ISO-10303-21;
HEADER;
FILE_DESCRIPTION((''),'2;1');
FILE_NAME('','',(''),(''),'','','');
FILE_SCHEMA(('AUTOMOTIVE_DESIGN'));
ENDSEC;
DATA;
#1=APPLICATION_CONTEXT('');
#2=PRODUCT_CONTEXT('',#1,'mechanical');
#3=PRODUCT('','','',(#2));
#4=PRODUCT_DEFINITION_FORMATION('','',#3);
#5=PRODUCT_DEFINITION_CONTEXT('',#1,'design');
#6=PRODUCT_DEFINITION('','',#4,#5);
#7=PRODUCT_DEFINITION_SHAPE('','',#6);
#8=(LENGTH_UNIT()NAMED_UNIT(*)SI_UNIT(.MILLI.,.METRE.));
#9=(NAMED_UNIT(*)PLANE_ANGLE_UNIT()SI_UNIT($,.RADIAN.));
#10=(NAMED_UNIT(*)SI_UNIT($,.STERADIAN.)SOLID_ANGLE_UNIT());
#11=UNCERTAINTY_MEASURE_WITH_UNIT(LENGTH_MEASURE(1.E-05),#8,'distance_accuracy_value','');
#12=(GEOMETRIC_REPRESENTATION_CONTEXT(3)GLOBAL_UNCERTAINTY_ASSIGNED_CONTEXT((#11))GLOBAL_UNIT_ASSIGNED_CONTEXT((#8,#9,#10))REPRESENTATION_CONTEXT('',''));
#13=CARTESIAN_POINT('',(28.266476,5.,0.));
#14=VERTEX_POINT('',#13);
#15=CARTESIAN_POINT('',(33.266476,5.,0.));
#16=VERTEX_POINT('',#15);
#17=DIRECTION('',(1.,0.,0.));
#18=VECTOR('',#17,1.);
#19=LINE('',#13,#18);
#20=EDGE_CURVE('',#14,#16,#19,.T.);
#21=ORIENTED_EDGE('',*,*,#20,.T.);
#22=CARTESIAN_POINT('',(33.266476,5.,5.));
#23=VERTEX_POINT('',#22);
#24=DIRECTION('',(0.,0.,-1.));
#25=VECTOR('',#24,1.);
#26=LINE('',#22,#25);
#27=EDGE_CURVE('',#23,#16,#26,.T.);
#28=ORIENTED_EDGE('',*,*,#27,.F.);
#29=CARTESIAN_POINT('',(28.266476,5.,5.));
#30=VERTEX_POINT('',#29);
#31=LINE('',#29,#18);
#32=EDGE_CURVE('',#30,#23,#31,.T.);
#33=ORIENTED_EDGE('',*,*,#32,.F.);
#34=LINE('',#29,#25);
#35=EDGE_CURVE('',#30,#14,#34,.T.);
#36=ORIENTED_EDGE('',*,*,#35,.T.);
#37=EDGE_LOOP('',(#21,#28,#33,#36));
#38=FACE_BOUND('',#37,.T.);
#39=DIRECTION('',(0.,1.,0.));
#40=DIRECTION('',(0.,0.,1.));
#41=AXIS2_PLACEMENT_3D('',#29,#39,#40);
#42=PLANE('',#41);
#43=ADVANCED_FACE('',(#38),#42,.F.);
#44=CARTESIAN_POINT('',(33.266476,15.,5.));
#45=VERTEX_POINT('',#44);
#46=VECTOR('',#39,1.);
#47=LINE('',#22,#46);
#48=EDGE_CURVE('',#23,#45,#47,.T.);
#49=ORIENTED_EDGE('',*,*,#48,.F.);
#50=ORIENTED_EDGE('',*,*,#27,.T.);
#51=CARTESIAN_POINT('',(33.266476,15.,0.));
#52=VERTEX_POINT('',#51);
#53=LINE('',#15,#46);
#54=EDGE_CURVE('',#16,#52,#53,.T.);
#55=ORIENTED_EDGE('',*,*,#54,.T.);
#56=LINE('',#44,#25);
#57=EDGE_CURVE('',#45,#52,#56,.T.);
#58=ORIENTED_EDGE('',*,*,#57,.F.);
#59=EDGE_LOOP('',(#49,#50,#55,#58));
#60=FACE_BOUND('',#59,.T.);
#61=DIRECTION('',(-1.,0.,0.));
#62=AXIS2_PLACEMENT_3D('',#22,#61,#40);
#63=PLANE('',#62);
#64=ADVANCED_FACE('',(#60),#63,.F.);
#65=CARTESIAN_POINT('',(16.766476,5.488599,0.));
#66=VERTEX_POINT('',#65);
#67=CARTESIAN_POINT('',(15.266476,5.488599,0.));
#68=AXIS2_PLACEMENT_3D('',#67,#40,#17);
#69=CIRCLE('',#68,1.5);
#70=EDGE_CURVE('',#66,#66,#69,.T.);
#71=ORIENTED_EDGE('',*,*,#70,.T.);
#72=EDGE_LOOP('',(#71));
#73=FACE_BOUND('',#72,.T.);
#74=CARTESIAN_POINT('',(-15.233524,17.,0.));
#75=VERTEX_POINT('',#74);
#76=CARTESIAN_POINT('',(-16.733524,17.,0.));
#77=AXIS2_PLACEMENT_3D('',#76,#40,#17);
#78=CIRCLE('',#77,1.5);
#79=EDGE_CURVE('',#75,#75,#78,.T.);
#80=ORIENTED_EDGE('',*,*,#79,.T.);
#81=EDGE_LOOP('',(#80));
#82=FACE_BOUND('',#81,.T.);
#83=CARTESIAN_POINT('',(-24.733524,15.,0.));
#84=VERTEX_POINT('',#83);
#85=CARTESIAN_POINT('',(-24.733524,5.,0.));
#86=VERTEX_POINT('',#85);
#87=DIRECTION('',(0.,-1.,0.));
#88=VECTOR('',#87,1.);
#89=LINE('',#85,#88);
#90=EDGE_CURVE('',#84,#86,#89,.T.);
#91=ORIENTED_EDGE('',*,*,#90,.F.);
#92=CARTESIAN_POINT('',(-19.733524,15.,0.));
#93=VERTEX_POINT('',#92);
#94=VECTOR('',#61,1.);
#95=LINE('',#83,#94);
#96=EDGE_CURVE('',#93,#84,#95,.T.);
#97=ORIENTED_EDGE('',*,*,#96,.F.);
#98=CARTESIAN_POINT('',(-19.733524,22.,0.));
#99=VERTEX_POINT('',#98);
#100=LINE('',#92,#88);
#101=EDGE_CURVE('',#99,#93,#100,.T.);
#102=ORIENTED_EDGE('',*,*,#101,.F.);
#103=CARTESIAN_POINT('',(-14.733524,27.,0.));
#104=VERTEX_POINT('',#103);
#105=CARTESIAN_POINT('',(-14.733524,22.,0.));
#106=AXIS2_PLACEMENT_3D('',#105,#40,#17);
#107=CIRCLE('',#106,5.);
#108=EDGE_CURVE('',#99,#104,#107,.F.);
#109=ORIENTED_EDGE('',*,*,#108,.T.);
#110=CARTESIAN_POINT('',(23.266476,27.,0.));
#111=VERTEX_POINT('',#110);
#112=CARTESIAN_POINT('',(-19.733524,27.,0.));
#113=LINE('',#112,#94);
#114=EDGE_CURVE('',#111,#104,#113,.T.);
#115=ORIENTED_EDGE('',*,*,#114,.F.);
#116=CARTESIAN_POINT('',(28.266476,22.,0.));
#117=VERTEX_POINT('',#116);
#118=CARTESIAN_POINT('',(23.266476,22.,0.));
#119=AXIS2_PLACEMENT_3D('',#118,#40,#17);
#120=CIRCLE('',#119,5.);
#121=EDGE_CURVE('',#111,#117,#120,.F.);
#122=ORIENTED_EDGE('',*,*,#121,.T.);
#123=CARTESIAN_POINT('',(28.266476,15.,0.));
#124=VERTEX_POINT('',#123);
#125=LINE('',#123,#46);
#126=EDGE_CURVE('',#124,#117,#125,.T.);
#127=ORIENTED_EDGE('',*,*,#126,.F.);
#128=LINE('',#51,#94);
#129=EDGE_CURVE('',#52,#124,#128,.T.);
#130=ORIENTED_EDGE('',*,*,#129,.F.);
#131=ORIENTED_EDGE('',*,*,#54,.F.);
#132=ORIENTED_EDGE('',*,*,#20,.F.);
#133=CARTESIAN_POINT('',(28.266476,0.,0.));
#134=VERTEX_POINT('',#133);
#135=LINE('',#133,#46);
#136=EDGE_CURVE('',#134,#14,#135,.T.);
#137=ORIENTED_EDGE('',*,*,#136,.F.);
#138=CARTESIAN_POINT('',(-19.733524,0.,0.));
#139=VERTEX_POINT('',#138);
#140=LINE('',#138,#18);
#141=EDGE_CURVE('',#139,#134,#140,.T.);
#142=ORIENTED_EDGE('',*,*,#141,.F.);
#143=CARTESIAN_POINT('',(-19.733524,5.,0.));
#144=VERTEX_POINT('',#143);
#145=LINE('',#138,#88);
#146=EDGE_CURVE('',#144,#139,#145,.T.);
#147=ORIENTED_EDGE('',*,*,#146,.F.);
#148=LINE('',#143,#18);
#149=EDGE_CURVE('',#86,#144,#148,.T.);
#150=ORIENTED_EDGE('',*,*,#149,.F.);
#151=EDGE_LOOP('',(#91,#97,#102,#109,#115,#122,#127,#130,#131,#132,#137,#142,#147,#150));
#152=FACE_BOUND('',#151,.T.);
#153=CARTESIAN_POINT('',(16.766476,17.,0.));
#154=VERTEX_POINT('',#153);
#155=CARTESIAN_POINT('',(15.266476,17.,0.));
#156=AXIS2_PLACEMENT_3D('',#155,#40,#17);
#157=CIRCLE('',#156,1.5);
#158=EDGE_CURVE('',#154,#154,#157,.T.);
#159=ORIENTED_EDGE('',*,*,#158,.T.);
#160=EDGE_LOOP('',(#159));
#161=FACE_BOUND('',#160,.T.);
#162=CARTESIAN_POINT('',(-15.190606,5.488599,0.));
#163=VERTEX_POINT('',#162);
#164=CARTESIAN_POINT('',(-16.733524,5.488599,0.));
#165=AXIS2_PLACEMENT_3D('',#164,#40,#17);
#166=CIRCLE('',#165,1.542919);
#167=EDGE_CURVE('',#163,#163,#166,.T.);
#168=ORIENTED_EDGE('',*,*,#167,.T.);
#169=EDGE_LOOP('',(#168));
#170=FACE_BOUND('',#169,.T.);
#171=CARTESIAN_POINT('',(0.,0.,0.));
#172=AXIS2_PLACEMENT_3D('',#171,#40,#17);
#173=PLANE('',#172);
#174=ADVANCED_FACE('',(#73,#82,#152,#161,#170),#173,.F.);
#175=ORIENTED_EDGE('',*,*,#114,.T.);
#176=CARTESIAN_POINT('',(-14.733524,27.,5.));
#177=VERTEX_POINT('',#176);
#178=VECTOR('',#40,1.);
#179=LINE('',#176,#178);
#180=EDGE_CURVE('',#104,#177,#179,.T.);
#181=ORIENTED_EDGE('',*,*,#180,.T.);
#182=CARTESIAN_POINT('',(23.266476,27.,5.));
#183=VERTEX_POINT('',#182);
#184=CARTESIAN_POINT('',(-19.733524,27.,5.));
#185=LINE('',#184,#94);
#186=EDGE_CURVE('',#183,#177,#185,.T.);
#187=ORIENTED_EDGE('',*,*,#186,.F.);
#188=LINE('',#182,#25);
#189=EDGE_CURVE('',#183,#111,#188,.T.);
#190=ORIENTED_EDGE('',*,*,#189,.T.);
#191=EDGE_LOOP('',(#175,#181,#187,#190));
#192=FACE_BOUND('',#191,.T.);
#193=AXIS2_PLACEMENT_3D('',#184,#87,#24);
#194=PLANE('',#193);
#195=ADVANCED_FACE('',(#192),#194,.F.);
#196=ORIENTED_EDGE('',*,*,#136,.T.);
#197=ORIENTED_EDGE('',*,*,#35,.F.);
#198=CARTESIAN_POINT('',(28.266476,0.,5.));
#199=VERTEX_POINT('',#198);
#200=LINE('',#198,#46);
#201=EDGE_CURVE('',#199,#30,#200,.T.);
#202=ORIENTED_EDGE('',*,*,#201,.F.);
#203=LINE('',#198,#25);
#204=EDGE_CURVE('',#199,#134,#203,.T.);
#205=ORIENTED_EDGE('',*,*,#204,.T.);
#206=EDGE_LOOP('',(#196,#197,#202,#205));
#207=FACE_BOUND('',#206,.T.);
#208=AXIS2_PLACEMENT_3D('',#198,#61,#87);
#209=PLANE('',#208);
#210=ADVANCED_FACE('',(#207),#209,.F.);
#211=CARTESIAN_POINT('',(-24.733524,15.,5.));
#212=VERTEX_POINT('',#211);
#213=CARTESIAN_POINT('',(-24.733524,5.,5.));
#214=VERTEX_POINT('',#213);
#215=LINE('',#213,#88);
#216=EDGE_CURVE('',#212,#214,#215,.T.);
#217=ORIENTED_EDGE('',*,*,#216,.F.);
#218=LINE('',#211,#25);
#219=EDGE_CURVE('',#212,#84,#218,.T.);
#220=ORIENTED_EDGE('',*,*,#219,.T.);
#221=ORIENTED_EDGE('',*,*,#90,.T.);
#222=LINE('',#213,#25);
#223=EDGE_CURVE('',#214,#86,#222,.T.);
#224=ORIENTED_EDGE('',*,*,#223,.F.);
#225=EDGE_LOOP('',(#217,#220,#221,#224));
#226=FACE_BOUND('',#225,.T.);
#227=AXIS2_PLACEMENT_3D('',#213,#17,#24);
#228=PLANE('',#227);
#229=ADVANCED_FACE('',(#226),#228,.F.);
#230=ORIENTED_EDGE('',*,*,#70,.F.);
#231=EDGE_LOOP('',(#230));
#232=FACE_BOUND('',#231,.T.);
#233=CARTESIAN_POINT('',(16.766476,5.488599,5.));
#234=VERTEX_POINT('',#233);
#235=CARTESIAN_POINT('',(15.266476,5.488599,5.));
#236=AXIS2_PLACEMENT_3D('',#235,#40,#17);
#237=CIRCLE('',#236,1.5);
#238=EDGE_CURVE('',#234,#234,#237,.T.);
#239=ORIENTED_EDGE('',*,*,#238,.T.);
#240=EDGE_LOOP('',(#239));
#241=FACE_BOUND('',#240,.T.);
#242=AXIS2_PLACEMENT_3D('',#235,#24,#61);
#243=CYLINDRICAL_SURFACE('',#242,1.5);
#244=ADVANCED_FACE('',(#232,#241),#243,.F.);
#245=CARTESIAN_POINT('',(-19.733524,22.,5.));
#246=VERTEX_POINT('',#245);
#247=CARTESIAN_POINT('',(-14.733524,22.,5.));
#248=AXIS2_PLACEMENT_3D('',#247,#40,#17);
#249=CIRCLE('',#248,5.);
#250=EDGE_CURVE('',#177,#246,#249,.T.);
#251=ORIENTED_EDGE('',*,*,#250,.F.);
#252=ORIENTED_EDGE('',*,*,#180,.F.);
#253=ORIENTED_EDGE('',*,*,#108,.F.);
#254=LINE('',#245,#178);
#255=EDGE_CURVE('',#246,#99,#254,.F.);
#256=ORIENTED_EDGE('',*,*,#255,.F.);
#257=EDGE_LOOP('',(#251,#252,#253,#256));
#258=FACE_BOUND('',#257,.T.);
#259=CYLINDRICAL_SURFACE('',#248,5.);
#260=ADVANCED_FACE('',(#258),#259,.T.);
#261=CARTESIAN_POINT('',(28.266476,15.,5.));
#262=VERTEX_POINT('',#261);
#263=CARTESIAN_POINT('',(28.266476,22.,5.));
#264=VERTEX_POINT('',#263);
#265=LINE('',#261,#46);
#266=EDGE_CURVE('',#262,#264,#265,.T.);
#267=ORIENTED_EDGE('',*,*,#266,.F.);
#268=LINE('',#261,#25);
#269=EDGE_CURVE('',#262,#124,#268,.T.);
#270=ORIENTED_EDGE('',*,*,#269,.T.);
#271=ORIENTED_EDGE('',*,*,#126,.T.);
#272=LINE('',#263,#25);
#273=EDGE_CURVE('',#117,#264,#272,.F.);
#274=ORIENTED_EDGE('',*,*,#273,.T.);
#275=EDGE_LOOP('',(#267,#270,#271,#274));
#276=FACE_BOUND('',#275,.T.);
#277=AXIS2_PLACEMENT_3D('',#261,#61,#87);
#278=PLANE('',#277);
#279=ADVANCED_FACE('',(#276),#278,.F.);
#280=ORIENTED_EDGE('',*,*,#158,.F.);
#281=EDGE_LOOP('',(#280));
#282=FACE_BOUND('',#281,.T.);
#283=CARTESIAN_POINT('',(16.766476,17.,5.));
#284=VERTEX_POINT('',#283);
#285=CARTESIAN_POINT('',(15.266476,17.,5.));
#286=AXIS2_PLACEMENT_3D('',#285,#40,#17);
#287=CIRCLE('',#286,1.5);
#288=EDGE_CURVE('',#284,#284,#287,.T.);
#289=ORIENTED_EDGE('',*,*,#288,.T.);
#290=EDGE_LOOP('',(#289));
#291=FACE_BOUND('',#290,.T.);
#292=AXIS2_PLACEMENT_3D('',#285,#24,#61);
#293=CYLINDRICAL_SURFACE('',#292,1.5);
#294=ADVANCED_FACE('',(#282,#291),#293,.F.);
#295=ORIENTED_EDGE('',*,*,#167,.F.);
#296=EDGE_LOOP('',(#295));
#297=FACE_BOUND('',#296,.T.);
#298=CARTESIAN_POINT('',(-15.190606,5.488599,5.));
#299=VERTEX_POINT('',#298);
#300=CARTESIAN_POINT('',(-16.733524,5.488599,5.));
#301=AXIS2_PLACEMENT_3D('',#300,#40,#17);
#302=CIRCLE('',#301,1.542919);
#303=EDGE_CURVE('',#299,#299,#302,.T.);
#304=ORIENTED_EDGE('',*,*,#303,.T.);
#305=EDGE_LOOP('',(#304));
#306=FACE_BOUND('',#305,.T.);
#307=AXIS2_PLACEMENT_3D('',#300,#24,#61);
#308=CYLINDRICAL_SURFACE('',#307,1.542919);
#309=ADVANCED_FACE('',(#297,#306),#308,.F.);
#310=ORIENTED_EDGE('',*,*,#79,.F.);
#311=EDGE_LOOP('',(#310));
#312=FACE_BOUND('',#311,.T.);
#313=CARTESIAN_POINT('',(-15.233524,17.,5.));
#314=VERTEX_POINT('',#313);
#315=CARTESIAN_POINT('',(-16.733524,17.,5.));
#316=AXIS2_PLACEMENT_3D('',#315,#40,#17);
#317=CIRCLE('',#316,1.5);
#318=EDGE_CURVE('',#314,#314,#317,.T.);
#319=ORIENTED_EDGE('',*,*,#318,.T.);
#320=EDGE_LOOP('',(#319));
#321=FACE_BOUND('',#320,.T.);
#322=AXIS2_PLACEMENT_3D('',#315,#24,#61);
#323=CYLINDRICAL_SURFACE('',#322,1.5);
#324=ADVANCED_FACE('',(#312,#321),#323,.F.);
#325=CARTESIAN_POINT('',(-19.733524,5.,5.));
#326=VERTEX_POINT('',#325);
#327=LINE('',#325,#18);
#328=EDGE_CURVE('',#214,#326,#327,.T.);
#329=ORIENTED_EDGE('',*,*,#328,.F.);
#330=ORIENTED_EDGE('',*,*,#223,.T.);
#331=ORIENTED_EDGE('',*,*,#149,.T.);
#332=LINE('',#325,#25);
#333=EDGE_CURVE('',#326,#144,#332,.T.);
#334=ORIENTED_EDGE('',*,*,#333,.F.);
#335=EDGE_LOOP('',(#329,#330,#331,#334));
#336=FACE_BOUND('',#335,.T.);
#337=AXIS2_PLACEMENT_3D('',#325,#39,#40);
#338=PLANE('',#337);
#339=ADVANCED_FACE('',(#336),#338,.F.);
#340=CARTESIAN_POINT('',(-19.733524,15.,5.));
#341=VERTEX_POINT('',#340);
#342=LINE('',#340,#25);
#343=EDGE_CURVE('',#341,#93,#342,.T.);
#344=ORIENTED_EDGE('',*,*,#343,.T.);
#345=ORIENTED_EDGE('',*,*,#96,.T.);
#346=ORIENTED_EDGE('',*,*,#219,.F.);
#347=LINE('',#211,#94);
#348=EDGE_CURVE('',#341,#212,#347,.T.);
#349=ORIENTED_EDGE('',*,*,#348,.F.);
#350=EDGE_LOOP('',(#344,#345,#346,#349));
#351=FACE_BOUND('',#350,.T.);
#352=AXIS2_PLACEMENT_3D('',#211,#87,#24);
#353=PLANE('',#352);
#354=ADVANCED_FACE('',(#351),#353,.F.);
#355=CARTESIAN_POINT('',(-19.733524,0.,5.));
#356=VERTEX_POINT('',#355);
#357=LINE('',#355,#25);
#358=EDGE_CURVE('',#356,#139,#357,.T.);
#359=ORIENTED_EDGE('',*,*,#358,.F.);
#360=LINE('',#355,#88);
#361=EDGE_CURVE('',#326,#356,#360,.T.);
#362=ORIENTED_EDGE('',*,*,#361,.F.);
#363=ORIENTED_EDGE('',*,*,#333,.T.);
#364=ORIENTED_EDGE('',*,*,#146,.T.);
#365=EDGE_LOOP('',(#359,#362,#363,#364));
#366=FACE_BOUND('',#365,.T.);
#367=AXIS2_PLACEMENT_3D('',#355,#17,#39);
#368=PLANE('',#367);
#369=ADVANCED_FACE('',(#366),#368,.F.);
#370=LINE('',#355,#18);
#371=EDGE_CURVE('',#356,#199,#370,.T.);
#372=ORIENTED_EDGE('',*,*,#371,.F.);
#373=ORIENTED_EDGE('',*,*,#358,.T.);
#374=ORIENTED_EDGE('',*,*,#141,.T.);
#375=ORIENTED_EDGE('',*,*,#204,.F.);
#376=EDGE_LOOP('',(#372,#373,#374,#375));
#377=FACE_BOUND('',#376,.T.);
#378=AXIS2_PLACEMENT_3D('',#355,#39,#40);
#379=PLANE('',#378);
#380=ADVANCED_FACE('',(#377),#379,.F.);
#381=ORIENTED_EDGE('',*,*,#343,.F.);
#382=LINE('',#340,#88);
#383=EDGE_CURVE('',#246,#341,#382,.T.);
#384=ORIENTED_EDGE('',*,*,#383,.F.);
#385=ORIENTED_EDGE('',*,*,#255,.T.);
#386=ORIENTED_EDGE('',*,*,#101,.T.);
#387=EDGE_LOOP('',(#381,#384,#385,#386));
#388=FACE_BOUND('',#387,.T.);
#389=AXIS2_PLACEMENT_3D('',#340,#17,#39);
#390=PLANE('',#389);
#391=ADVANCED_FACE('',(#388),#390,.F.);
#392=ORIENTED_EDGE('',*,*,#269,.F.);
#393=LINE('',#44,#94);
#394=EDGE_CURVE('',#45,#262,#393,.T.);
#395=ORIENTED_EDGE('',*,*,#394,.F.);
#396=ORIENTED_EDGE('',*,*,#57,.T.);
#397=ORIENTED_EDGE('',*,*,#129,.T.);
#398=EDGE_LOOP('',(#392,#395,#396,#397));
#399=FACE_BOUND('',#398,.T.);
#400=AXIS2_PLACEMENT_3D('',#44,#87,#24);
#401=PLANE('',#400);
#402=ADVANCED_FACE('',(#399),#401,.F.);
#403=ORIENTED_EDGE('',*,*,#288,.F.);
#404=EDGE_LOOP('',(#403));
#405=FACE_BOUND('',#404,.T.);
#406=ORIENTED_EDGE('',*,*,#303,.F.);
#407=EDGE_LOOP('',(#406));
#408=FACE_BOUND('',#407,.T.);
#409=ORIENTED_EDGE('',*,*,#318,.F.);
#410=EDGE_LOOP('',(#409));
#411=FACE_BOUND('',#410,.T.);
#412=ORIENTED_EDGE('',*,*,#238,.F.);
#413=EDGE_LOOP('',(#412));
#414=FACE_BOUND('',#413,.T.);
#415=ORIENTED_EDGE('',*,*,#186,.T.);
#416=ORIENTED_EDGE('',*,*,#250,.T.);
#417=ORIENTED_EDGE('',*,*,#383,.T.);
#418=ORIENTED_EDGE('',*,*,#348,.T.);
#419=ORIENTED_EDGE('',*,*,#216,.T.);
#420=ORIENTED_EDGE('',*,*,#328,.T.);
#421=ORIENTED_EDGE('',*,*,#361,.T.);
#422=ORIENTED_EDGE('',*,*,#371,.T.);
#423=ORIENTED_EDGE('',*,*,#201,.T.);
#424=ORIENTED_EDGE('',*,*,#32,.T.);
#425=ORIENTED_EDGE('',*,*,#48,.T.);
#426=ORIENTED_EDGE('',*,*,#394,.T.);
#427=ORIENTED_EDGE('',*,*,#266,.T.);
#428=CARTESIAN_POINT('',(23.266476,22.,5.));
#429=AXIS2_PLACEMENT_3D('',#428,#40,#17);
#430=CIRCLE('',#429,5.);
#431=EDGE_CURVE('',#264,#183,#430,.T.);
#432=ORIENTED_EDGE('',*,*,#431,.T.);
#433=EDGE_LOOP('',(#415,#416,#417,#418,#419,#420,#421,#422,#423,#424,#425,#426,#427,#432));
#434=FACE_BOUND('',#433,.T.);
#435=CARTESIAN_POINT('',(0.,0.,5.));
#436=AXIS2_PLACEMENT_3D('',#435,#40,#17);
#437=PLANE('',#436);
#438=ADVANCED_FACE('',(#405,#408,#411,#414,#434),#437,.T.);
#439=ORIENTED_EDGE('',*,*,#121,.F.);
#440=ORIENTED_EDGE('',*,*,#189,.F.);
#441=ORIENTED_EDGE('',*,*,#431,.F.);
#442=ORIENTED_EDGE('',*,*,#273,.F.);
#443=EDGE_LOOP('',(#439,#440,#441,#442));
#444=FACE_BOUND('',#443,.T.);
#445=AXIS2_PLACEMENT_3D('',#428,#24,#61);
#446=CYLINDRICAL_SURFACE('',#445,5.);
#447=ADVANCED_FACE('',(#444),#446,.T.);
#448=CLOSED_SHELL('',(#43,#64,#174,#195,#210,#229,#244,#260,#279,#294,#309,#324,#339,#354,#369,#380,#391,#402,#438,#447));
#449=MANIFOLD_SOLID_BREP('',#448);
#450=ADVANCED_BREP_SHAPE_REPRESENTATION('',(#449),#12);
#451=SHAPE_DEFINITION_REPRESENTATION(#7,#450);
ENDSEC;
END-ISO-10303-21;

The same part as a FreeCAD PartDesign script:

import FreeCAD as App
import Part
import Sketcher

V = App.Vector
Q = App.Units.Quantity


def edges_at(feature, points):
    """Names of the edges that pass closest to the given points."""
    edges = feature.Shape.Edges
    near = lambda p: min(range(len(edges)), key=lambda i: edges[i].distToShape(Part.Vertex(*p))[0])
    return sorted({f"Edge{near(p) + 1}" for p in points})

doc = App.newDocument("Part")
body = doc.addObject("PartDesign::Body", "Body")

sketch1 = body.newObject("Sketcher::SketchObject", "Sketch")
sketch1.AttachmentSupport = (doc.getObject("XY_Plane"), [""])
sketch1.MapMode = "FlatFace"
sketch1.addGeometry(Part.LineSegment(V(-19.733524, 0, 0), V(28.266476, 0, 0)), False)
sketch1.addGeometry(Part.LineSegment(V(28.266476, 0, 0), V(28.266476, 5, 0)), False)
sketch1.addGeometry(Part.LineSegment(V(28.266476, 5, 0), V(33.266476, 5, 0)), False)
sketch1.addGeometry(Part.LineSegment(V(33.266476, 5, 0), V(33.266476, 15, 0)), False)
sketch1.addGeometry(Part.LineSegment(V(33.266476, 15, 0), V(28.266476, 15, 0)), False)
sketch1.addGeometry(Part.LineSegment(V(28.266476, 15, 0), V(28.266476, 27, 0)), False)
sketch1.addGeometry(Part.LineSegment(V(28.266476, 27, 0), V(-19.733524, 27, 0)), False)
sketch1.addGeometry(Part.LineSegment(V(-19.733524, 27, 0), V(-19.733524, 15, 0)), False)
sketch1.addGeometry(Part.LineSegment(V(-19.733524, 15, 0), V(-24.733524, 15, 0)), False)
sketch1.addGeometry(Part.LineSegment(V(-24.733524, 15, 0), V(-24.733524, 5, 0)), False)
sketch1.addGeometry(Part.LineSegment(V(-24.733524, 5, 0), V(-19.733524, 5, 0)), False)
sketch1.addGeometry(Part.LineSegment(V(-19.733524, 5, 0), V(-19.733524, 0, 0)), False)
sketch1.addGeometry(Part.Circle(V(-16.733524, 5.488599, 0), V(0, 0, 1), 1.542919), False)
sketch1.addGeometry(Part.Circle(V(15.266476, 5.488599, 0), V(0, 0, 1), 1.5), False)
sketch1.addGeometry(Part.Circle(V(-16.733524, 17, 0), V(0, 0, 1), 1.5), False)
sketch1.addGeometry(Part.Circle(V(15.266476, 17, 0), V(0, 0, 1), 1.5), False)
sketch1.addConstraint(Sketcher.Constraint("Coincident", 0, 2, 1, 1))
sketch1.addConstraint(Sketcher.Constraint("Coincident", 1, 2, 2, 1))
sketch1.addConstraint(Sketcher.Constraint("Coincident", 2, 2, 3, 1))
sketch1.addConstraint(Sketcher.Constraint("Coincident", 3, 2, 4, 1))
sketch1.addConstraint(Sketcher.Constraint("Coincident", 4, 2, 5, 1))
sketch1.addConstraint(Sketcher.Constraint("Coincident", 5, 2, 6, 1))
sketch1.addConstraint(Sketcher.Constraint("Coincident", 6, 2, 7, 1))
sketch1.addConstraint(Sketcher.Constraint("Coincident", 7, 2, 8, 1))
sketch1.addConstraint(Sketcher.Constraint("Coincident", 8, 2, 9, 1))
sketch1.addConstraint(Sketcher.Constraint("Coincident", 9, 2, 10, 1))
sketch1.addConstraint(Sketcher.Constraint("Coincident", 10, 2, 11, 1))
sketch1.addConstraint(Sketcher.Constraint("Coincident", 11, 2, 0, 1))
sketch1.addConstraint(Sketcher.Constraint("Horizontal", 0))
sketch1.addConstraint(Sketcher.Constraint("Vertical", 1))
sketch1.addConstraint(Sketcher.Constraint("Horizontal", 2))
sketch1.addConstraint(Sketcher.Constraint("Vertical", 3))
sketch1.addConstraint(Sketcher.Constraint("Horizontal", 4))
sketch1.addConstraint(Sketcher.Constraint("Vertical", 5))
sketch1.addConstraint(Sketcher.Constraint("Horizontal", 6))
sketch1.addConstraint(Sketcher.Constraint("Vertical", 7))
sketch1.addConstraint(Sketcher.Constraint("Horizontal", 8))
sketch1.addConstraint(Sketcher.Constraint("Vertical", 9))
sketch1.addConstraint(Sketcher.Constraint("Horizontal", 10))
sketch1.addConstraint(Sketcher.Constraint("Vertical", 11))
sketch1.addConstraint(Sketcher.Constraint("Equal", 13, 14))
sketch1.addConstraint(Sketcher.Constraint("Equal", 14, 15))
sketch1.addConstraint(Sketcher.Constraint("PointOnObject", 0, 2, -1))
sketch1.addConstraint(Sketcher.Constraint("Horizontal", 12, 3, 13, 3))
sketch1.addConstraint(Sketcher.Constraint("Horizontal", 14, 3, 15, 3))
sketch1.addConstraint(Sketcher.Constraint("Horizontal", 4, 2, 7, 2))
sketch1.addConstraint(Sketcher.Constraint("Horizontal", 2, 2, 9, 2))
sketch1.addConstraint(Sketcher.Constraint("Vertical", 12, 3, 14, 3))
sketch1.addConstraint(Sketcher.Constraint("Vertical", 13, 3, 15, 3))
sketch1.addConstraint(Sketcher.Constraint("Vertical", 1, 2, 4, 2))
sketch1.addConstraint(Sketcher.Constraint("Vertical", 7, 2, 10, 2))
sketch1.addConstraint(Sketcher.Constraint("Equal", 4, 8))
sketch1.addConstraint(Sketcher.Constraint("Equal", 10, 1))
sketch1.addConstraint(Sketcher.Constraint("Diameter", 13, Q("3 mm")))
sketch1.addConstraint(Sketcher.Constraint("DistanceX", 0, 1, 0, 2, Q("48 mm")))
sketch1.addConstraint(Sketcher.Constraint("DistanceX", 2, 1, 2, 2, Q("5 mm")))
sketch1.addConstraint(Sketcher.Constraint("DistanceY", 3, 1, 3, 2, Q("10 mm")))
sketch1.addConstraint(Sketcher.Constraint("DistanceY", 5, 1, 5, 2, Q("12 mm")))
sketch1.addConstraint(Sketcher.Constraint("DistanceY", -1, 1, 14, 3, Q("17 mm")))
sketch1.addConstraint(Sketcher.Constraint("DistanceX", 12, 3, 13, 3, Q("32 mm")))
sketch1.addConstraint(Sketcher.Constraint("DistanceX", 13, 3, 0, 2, Q("13 mm")))
sketch1.addConstraint(Sketcher.Constraint("Diameter", 12, Q("3.085837 mm")))
sketch1.addConstraint(Sketcher.Constraint("DistanceY", -1, 1, 12, 3, Q("5.488599 mm")))
sketch1.addConstraint(Sketcher.Constraint("DistanceX", 12, 3, -1, 1, Q("16.733524 mm")))
pad1 = body.newObject("PartDesign::Pad", "Pad")
pad1.Profile = sketch1
pad1.Length = 5
doc.recompute()

fillet = body.newObject("PartDesign::Fillet", "Fillet")
fillet.Base = (pad1, edges_at(pad1, [(-19.734, 27, 2.5)]))
fillet.Radius = 5
doc.recompute()

fillet2 = body.newObject("PartDesign::Fillet", "Fillet001")
fillet2.Base = (fillet, edges_at(fillet, [(28.266, 27, 2.5)]))
fillet2.Radius = 5

doc.recompute()
